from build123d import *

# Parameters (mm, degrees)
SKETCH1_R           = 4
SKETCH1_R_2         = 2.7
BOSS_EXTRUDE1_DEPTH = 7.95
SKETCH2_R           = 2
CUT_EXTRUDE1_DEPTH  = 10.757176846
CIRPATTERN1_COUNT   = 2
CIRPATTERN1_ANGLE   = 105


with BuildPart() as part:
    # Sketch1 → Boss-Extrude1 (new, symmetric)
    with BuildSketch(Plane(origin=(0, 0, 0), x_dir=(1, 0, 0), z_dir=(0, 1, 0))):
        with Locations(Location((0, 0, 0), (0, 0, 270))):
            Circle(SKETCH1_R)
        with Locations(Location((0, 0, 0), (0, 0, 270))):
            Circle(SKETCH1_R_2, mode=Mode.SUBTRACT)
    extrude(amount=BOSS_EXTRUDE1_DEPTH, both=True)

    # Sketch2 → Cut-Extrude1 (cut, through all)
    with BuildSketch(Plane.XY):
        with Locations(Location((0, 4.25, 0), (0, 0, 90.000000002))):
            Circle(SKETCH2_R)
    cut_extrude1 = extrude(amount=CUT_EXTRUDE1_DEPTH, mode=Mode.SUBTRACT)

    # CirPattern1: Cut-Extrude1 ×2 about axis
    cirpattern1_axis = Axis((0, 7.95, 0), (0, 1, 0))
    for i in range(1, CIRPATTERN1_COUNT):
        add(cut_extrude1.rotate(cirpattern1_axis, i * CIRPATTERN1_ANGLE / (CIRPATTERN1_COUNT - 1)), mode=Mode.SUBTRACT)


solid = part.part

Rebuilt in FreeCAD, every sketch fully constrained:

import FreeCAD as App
import Part
import Sketcher

doc = App.newDocument("Part")
params = doc.addObject("Spreadsheet::Sheet", "Params")
for row, (alias, value) in enumerate([
    ("sketch1_diameter", "8 mm"),
    ("sketch1_diameter2", "5.4 mm"),
    ("pad1_length", "15.9 mm"),
    ("sketch2_diameter", "4 mm"),
], start=1):
    params.set(f"A{row}", alias)
    params.set(f"B{row}", "=" + value)
    params.setAlias(f"B{row}", alias)

body = doc.addObject("PartDesign::Body", "Body")

# Sketch on XZ plane
sketch1 = body.newObject("Sketcher::SketchObject", "Sketch")
sketch1.AttachmentSupport = (doc.getObject("XZ_Plane"), [""])
sketch1.MapMode = "FlatFace"
sketch1.addGeometry(Part.Circle(App.Vector(0, 0, 0), App.Vector(0, 0, 1), 4), False)
sketch1.addGeometry(Part.Circle(App.Vector(0, 0, 0), App.Vector(0, 0, 1), 2.7), False)
sketch1.addConstraint(Sketcher.Constraint("Coincident", 0, 3, -1, 1))
sketch1.addConstraint(Sketcher.Constraint("Coincident", 1, 3, -1, 1))
sketch1.addConstraint(Sketcher.Constraint("Diameter", 0, 8.0))
sketch1.addConstraint(Sketcher.Constraint("Diameter", 1, 5.4))
sketch1.setExpression("Constraints[2]", "Params.sketch1_diameter")
sketch1.setExpression("Constraints[3]", "Params.sketch1_diameter2")
pad1 = body.newObject("PartDesign::Pad", "Pad")
pad1.Profile = sketch1
pad1.setExpression("Length", "Params.pad1_length")
pad1.Midplane = True

# Sketch on XY plane
sketch2 = body.newObject("Sketcher::SketchObject", "Sketch001")
sketch2.AttachmentSupport = (doc.getObject("XY_Plane"), [""])
sketch2.MapMode = "FlatFace"
sketch2.addGeometry(Part.Circle(App.Vector(0, 4.25, 0), App.Vector(0, 0, 1), 2), False)
sketch2.addConstraint(Sketcher.Constraint("PointOnObject", 0, 3, -2))
sketch2.addConstraint(Sketcher.Constraint("Diameter", 0, 4.0))
sketch2.addConstraint(Sketcher.Constraint("DistanceY", -1, 1, 0, 3, 4.25))
sketch2.setExpression("Constraints[1]", "Params.sketch2_diameter")
pocket1 = body.newObject("PartDesign::Pocket", "Pocket")
pocket1.Profile = sketch2
pocket1.Type = "ThroughAll"
pocket1.Reversed = True
doc.recompute()

polarpattern = body.newObject("PartDesign::PolarPattern", "PolarPattern")
polarpattern.Originals = [pocket1]
polarpattern.Axis = (doc.getObject("Y_Axis"), [""])
polarpattern.Angle = 105
polarpattern.Occurrences = 2
body.Tip = polarpattern

doc.recompute()
